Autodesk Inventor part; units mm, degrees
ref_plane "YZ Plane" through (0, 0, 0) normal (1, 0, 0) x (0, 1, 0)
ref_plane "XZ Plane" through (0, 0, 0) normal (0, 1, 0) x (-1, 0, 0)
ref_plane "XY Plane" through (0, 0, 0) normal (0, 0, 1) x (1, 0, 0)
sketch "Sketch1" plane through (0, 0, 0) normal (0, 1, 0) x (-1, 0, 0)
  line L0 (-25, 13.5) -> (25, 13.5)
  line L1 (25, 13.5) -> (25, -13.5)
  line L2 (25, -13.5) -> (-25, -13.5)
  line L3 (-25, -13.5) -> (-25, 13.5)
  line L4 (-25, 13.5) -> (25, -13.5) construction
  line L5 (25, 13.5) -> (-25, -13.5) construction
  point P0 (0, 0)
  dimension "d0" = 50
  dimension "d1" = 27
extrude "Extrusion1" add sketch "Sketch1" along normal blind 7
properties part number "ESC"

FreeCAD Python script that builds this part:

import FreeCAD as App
import Part
import Sketcher

V = App.Vector
Q = App.Units.Quantity


def add_polygon(sketch, points):
    """Adds a closed chain of lines whose ends are joined by coincident constraints."""
    first, n = sketch.GeometryCount, len(points)
    for a, b in zip(points, points[1:] + points[:1]):
        sketch.addGeometry(Part.LineSegment(App.Vector(*a, 0), App.Vector(*b, 0)), False)
    for i in range(n):
        sketch.addConstraint(Sketcher.Constraint("Coincident", first + i, 2, first + (i + 1) % n, 1))

doc = App.newDocument("Part")
params = doc.addObject("Spreadsheet::Sheet", "Params")
for row, (alias, value) in enumerate([
    ("sketch1_height", "1.063 in"),
    ("pad1_length", "0.2755906 in"),
], start=1):
    params.set(f"A{row}", alias)
    params.set(f"B{row}", "=" + value)
    params.setAlias(f"B{row}", alias)

body = doc.addObject("PartDesign::Body", "Body")

sketch1 = body.newObject("Sketcher::SketchObject", "Sketch")
sketch1.AttachmentSupport = (doc.getObject("XZ_Plane"), [""])
sketch1.MapMode = "FlatFace"
add_polygon(sketch1, [(-25, 14), (25, 14), (25, -14), (-25, -14)])
sketch1.addConstraint([
    Sketcher.Constraint("Horizontal", 0),
    Sketcher.Constraint("Vertical", 1),
    Sketcher.Constraint("Horizontal", 2),
    Sketcher.Constraint("Vertical", 3),
    Sketcher.Constraint("Symmetric", 0, 2, 2, 2, -1, 1),
    Sketcher.Constraint("DistanceY", 1, 2, 1, 1, Q("1.063 in")),
    Sketcher.Constraint("DistanceX", 0, 1, 0, 2, Q("1.9685 in")),
])
sketch1.setExpression("Constraints[9]", "Params.sketch1_height")
pad1 = body.newObject("PartDesign::Pad", "Pad")
pad1.Profile = sketch1
pad1.setExpression("Length", "Params.pad1_length")
pad1.Reversed = True

doc.recompute()
